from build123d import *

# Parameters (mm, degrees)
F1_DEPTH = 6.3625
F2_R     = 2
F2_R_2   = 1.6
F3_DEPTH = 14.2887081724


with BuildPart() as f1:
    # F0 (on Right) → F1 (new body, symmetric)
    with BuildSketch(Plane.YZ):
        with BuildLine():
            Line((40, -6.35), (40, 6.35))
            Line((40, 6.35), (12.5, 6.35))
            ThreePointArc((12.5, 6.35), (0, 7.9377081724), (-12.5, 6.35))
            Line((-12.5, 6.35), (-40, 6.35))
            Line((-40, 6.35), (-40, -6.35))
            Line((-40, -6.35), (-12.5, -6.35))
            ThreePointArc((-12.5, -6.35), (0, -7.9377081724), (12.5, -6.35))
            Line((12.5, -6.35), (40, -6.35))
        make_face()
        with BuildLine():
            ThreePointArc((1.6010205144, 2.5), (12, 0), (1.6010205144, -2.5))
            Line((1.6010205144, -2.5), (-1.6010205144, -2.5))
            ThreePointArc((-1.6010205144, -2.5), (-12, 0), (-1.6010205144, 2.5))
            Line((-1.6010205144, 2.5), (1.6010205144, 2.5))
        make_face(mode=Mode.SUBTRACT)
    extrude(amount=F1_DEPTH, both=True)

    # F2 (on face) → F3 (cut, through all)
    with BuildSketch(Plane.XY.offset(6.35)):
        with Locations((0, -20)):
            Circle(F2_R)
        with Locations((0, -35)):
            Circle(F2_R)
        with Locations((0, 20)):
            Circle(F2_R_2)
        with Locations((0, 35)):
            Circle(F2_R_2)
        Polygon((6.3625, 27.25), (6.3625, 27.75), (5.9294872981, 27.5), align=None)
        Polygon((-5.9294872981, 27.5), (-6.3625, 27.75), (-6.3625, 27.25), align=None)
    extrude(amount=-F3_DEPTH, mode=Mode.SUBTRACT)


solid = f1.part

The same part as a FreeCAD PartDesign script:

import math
import FreeCAD as App
import Part
import Sketcher
from FreeCAD import Vector
Q = App.Units.Quantity

doc = App.newDocument("Part")
body = doc.addObject("PartDesign::Body", "Body")

# Sketch on YZ plane
sketch1 = body.newObject("Sketcher::SketchObject", "Sketch")
sketch1.AttachmentSupport = (doc.getObject("YZ_Plane"), [""])
sketch1.MapMode = "FlatFace"
sketch1.addGeometry([
    Part.LineSegment(Vector(40, -6.3, 0), Vector(40, 6.3, 0)),  # 0
    Part.LineSegment(Vector(40, 6.3, 0), Vector(12.5, 6.3, 0)),  # 1
    Part.ArcOfCircle(Part.Circle(Vector(0, -42.1, 0), Vector(0, 0, 1), 50), math.radians(76), math.radians(104)),  # 2
    Part.LineSegment(Vector(-12.5, 6.3, 0), Vector(-40, 6.3, 0)),  # 3
    Part.LineSegment(Vector(-40, 6.3, 0), Vector(-40, -6.3, 0)),  # 4
    Part.LineSegment(Vector(-40, -6.3, 0), Vector(-12.5, -6.3, 0)),  # 5
    Part.ArcOfCircle(Part.Circle(Vector(0, 42.1, 0), Vector(0, 0, 1), 50), math.radians(-104), math.radians(-76)),  # 6
    Part.LineSegment(Vector(12.5, -6.3, 0), Vector(40, -6.3, 0)),  # 7
    Part.LineSegment(Vector(-1.6, 2.5, 0), Vector(1.6, 2.5, 0)),  # 8
    Part.ArcOfCircle(Part.Circle(Vector(6.5, 0, 0), Vector(0, 0, 1), 5.5), math.radians(-153), math.radians(153)),  # 9
    Part.LineSegment(Vector(1.6, -2.5, 0), Vector(-1.6, -2.5, 0)),  # 10
    Part.ArcOfCircle(Part.Circle(Vector(-6.5, 0, 0), Vector(0, 0, 1), 5.5), math.radians(27), math.radians(333)),  # 11
], False)
sketch1.addConstraint([
    Sketcher.Constraint("Coincident", 0, 2, 1, 1),
    Sketcher.Constraint("Coincident", 1, 2, 2, 1),
    Sketcher.Constraint("Coincident", 2, 2, 3, 1),
    Sketcher.Constraint("Coincident", 3, 2, 4, 1),
    Sketcher.Constraint("Coincident", 4, 2, 5, 1),
    Sketcher.Constraint("Coincident", 5, 2, 6, 1),
    Sketcher.Constraint("Coincident", 6, 2, 7, 1),
    Sketcher.Constraint("Coincident", 7, 2, 0, 1),
    Sketcher.Constraint("Coincident", 8, 2, 9, 2),
    Sketcher.Constraint("Coincident", 9, 1, 10, 1),
    Sketcher.Constraint("Coincident", 10, 2, 11, 2),
    Sketcher.Constraint("Coincident", 11, 1, 8, 1),
    Sketcher.Constraint("Vertical", 0),
    Sketcher.Constraint("Horizontal", 1),
    Sketcher.Constraint("Horizontal", 3),
    Sketcher.Constraint("Vertical", 4),
    Sketcher.Constraint("Horizontal", 5),
    Sketcher.Constraint("Horizontal", 7),
    Sketcher.Constraint("Horizontal", 8),
    Sketcher.Constraint("Horizontal", 10),
    Sketcher.Constraint("Equal", 2, 6),
    Sketcher.Constraint("Equal", 9, 11),
    Sketcher.Constraint("Symmetric", 2, 3, 6, 3, -1, 1),
    Sketcher.Constraint("Symmetric", 9, 3, 11, 3, -1, 1),
    Sketcher.Constraint("Symmetric", 0, 2, 4, 2, -1, 1),
    Sketcher.Constraint("Symmetric", 1, 2, 2, 2, -2),
    Sketcher.Constraint("Symmetric", 8, 2, 9, 1, -1),
    Sketcher.Constraint("Horizontal", 5, 2, 6, 2),
    Sketcher.Constraint("Radius", 2, Q("50 mm")),
    Sketcher.Constraint("Radius", 9, Q("5.5 mm")),
    Sketcher.Constraint("DistanceX", 1, 2, 1, 1, Q("27.5 mm")),
    Sketcher.Constraint("DistanceY", 0, 1, 0, 2, Q("12.7 mm")),
    Sketcher.Constraint("DistanceX", -1, 1, 0, 2, Q("40 mm")),
    Sketcher.Constraint("DistanceX", 11, 3, 9, 3, Q("13 mm")),
    Sketcher.Constraint("DistanceY", 9, 1, 8, 2, Q("5 mm")),
])
pad1 = body.newObject("PartDesign::Pad", "Pad")
pad1.Profile = sketch1
pad1.Length = 12.725
pad1.Midplane = True

# Sketch on XY plane
sketch2 = body.newObject("Sketcher::SketchObject", "Sketch001")
sketch2.AttachmentSupport = (doc.getObject("XY_Plane"), [""])
sketch2.MapMode = "FlatFace"
sketch2.AttachmentOffset = App.Placement(Vector(0, 0, 6.35), App.Rotation())
sketch2.addGeometry([
    Part.Circle(Vector(0, -20, 0), Vector(0, 0, 1), 2),  # 0
    Part.Circle(Vector(0, -35, 0), Vector(0, 0, 1), 2),  # 1
    Part.Circle(Vector(0, 20, 0), Vector(0, 0, 1), 1.6),  # 2
    Part.Circle(Vector(0, 35, 0), Vector(0, 0, 1), 1.6),  # 3
    Part.LineSegment(Vector(6.4, 27.2, 0), Vector(6.4, 27.8, 0)),  # 4
    Part.LineSegment(Vector(6.4, 27.8, 0), Vector(5.9, 27.5, 0)),  # 5
    Part.LineSegment(Vector(5.9, 27.5, 0), Vector(6.4, 27.2, 0)),  # 6
    Part.LineSegment(Vector(-5.9, 27.5, 0), Vector(-6.4, 27.8, 0)),  # 7
    Part.LineSegment(Vector(-6.4, 27.8, 0), Vector(-6.4, 27.2, 0)),  # 8
    Part.LineSegment(Vector(-6.4, 27.2, 0), Vector(-5.9, 27.5, 0)),  # 9
], False)
sketch2.addConstraint([
    Sketcher.Constraint("Coincident", 4, 2, 5, 1),
    Sketcher.Constraint("Coincident", 5, 2, 6, 1),
    Sketcher.Constraint("Coincident", 6, 2, 4, 1),
    Sketcher.Constraint("Coincident", 7, 2, 8, 1),
    Sketcher.Constraint("Coincident", 8, 2, 9, 1),
    Sketcher.Constraint("Coincident", 9, 2, 7, 1),
    Sketcher.Constraint("Vertical", 4),
    Sketcher.Constraint("Vertical", 8),
    Sketcher.Constraint("Equal", 0, 1),
    Sketcher.Constraint("Equal", 2, 3),
    Sketcher.Constraint("Symmetric", 0, 3, 2, 3, -1, 1),
    Sketcher.Constraint("Symmetric", 1, 3, 3, 3, -1, 1),
    Sketcher.Constraint("Symmetric", 4, 2, 7, 2, -2),
    Sketcher.Constraint("Symmetric", 5, 2, 9, 2, -2),
    Sketcher.Constraint("PointOnObject", 0, 3, -2),
    Sketcher.Constraint("PointOnObject", 1, 3, -2),
    Sketcher.Constraint("Parallel", 6, 7),
    Sketcher.Constraint("Parallel", 5, 9),
    Sketcher.Constraint("Diameter", 0, Q("4 mm")),
    Sketcher.Constraint("Diameter", 2, Q("3.2 mm")),
    Sketcher.Constraint("Angle", 5, Q("-150 deg")),
    Sketcher.Constraint("DistanceY", 4, 1, 4, 2, Q("0.5 mm")),
    Sketcher.Constraint("DistanceY", 0, 3, -1, 1, Q("20 mm")),
    Sketcher.Constraint("DistanceY", 1, 3, -1, 1, Q("35 mm")),
    Sketcher.Constraint("DistanceY", -1, 1, 5, 2, Q("27.5 mm")),
    Sketcher.Constraint("DistanceX", 7, 2, 4, 2, Q("12.725 mm")),
])
pocket1 = body.newObject("PartDesign::Pocket", "Pocket")
pocket1.Profile = sketch2
pocket1.Type = "ThroughAll"

doc.recompute()
